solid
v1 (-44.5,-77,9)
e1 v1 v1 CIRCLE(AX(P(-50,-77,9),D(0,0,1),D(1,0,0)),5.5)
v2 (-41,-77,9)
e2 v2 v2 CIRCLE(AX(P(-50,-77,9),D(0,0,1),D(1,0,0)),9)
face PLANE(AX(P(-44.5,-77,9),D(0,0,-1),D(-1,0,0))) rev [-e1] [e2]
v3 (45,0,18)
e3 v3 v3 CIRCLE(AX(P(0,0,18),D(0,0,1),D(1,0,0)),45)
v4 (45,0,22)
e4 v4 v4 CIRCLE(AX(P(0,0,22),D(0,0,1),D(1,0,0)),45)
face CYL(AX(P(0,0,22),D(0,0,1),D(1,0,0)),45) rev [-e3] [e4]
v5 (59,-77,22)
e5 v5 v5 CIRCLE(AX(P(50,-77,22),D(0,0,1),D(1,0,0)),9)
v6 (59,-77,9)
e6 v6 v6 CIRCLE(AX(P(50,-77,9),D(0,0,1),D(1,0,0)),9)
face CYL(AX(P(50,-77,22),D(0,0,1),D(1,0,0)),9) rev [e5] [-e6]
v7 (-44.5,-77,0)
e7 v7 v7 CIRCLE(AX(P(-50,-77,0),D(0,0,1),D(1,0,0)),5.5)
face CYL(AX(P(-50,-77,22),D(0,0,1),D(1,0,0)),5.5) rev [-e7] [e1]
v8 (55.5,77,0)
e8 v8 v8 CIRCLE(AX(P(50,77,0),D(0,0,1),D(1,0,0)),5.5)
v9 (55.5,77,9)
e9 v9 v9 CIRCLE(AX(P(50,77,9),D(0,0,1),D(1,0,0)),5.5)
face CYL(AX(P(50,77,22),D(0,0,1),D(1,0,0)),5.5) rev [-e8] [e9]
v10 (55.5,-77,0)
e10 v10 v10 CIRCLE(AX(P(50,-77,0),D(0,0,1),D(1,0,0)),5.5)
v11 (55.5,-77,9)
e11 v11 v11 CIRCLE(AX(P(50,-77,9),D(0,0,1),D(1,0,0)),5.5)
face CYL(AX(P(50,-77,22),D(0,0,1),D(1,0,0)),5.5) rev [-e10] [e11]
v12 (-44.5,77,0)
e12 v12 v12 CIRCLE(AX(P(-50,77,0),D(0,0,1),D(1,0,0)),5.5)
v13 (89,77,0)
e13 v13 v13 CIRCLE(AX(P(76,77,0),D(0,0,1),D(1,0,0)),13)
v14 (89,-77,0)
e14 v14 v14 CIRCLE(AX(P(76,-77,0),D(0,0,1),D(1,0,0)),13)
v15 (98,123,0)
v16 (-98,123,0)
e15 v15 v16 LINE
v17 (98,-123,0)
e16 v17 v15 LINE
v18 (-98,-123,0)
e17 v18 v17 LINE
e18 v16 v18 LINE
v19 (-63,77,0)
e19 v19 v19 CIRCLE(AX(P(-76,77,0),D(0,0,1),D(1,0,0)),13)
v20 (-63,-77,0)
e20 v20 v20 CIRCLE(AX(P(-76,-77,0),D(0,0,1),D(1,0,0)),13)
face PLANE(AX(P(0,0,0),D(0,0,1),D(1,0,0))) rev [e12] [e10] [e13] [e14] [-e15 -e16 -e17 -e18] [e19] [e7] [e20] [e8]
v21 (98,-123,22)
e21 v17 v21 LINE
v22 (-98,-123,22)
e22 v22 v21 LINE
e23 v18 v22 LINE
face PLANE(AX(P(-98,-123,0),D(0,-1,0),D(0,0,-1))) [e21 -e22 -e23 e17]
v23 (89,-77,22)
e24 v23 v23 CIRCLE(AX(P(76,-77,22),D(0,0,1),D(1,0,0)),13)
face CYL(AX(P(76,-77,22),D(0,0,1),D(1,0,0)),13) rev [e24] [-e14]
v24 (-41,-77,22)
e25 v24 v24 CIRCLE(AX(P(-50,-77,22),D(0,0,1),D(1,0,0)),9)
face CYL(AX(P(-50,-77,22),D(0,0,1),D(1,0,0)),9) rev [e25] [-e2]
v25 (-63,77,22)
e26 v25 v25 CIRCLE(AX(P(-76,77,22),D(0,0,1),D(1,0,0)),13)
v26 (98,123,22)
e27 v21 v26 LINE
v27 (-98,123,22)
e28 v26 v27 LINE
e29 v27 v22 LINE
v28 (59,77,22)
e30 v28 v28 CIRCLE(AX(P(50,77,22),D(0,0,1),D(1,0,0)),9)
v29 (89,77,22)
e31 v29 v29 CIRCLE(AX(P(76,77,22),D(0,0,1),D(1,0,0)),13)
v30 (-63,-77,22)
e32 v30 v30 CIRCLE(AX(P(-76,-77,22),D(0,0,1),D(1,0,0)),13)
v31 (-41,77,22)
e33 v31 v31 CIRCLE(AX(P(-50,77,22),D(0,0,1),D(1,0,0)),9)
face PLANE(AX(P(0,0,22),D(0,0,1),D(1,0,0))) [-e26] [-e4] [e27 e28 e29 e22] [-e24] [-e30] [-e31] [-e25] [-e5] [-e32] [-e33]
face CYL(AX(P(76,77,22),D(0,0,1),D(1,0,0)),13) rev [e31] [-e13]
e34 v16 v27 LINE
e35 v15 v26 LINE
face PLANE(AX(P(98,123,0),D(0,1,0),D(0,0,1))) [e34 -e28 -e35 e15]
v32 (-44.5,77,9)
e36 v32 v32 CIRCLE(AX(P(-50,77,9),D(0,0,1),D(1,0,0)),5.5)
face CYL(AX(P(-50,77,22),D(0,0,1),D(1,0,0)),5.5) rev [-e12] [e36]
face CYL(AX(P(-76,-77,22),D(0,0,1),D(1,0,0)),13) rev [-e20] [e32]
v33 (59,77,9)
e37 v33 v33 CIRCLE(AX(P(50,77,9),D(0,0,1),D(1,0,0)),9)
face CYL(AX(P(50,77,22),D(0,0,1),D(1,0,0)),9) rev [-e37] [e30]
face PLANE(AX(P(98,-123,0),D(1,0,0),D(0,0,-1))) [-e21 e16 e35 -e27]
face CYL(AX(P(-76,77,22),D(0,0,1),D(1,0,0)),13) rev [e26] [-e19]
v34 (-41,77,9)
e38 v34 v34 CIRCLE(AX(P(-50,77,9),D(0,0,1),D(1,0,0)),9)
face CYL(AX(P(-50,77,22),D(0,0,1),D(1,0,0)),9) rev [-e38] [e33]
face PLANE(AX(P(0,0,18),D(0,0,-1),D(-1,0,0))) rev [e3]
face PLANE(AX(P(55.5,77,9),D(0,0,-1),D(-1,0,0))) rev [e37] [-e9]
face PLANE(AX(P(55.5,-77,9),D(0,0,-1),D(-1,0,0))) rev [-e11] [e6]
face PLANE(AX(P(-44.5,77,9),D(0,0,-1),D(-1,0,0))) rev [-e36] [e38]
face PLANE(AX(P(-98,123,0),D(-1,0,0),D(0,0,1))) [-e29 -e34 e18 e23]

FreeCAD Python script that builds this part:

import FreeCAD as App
import Part
import Sketcher

V = App.Vector
Q = App.Units.Quantity


def add_polygon(sketch, points):
    """Adds a closed chain of lines whose ends are joined by coincident constraints."""
    first, n = sketch.GeometryCount, len(points)
    for a, b in zip(points, points[1:] + points[:1]):
        sketch.addGeometry(Part.LineSegment(App.Vector(*a, 0), App.Vector(*b, 0)), False)
    for i in range(n):
        sketch.addConstraint(Sketcher.Constraint("Coincident", first + i, 2, first + (i + 1) % n, 1))

doc = App.newDocument("Part")
body = doc.addObject("PartDesign::Body", "Body")

# Sketch on XY plane
sketch1 = doc.addObject("Sketcher::SketchObject", "Sketch")
body.addObject(sketch1)
sketch1.AttachmentSupport = (doc.XY_Plane, [""])
sketch1.MapMode = "FlatFace"
sketch1.AttachmentOffset = App.Placement(V(0, 0, 22), App.Rotation())
add_polygon(sketch1, [(-98, 123), (-98, -123), (98, -123), (98, 123)])  # lines 0-3
sketch1.addConstraint([
    Sketcher.Constraint("Vertical", 0),
    Sketcher.Constraint("Horizontal", 1),
    Sketcher.Constraint("Vertical", 2),
    Sketcher.Constraint("Horizontal", 3),
    Sketcher.Constraint("Symmetric", 0, 2, 2, 2, -1, 1),
    Sketcher.Constraint("DistanceX", 1, 1, 1, 2, Q("196 mm")),
    Sketcher.Constraint("DistanceY", 0, 2, 0, 1, Q("246 mm")),
])
pad1 = doc.addObject("PartDesign::Pad", "Pad")
body.addObject(pad1)
pad1.Profile = sketch1
pad1.Length = 22
pad1.Reversed = True

# Sketch on XY plane
sketch2 = doc.addObject("Sketcher::SketchObject", "Sketch001")
body.addObject(sketch2)
sketch2.AttachmentSupport = (doc.XY_Plane, [""])
sketch2.MapMode = "FlatFace"
sketch2.AttachmentOffset = App.Placement(V(0, 0, 22), App.Rotation())
sketch2.addGeometry([
    Part.Circle(V(50, 77, 0), V(0, 0, 1), 6),
    Part.Circle(V(50, -77, 0), V(0, 0, 1), 6),
    Part.Circle(V(-50, 77, 0), V(0, 0, 1), 6),
    Part.Circle(V(-50, -77, 0), V(0, 0, 1), 6),
], False)
sketch2.addConstraint([
    Sketcher.Constraint("Equal", 0, 1),
    Sketcher.Constraint("Equal", 1, 2),
    Sketcher.Constraint("Equal", 2, 3),
    Sketcher.Constraint("Symmetric", 1, 3, 2, 3, -1, 1),
    Sketcher.Constraint("Symmetric", 0, 3, 3, 3, -1, 1),
    Sketcher.Constraint("Symmetric", 0, 3, 2, 3, -2),
    Sketcher.Constraint("Diameter", 0, Q("11 mm")),
    Sketcher.Constraint("DistanceX", -1, 1, 0, 3, Q("50 mm")),
    Sketcher.Constraint("DistanceY", -1, 1, 0, 3, Q("77 mm")),
])
doc.recompute()
hole = doc.addObject("PartDesign::Hole", "Hole")
body.addObject(hole)
hole.Profile = sketch2
hole.ThreadType = "None"
hole.Diameter = 11
hole.DepthType = "ThroughAll"
hole.HoleCutType = "Counterbore"
hole.HoleCutDiameter = 18
hole.HoleCutDepth = 13

# Sketch on XY plane
sketch3 = doc.addObject("Sketcher::SketchObject", "Sketch002")
body.addObject(sketch3)
sketch3.AttachmentSupport = (doc.XY_Plane, [""])
sketch3.MapMode = "FlatFace"
sketch3.AttachmentOffset = App.Placement(V(0, 0, 22), App.Rotation())
sketch3.addGeometry([
    Part.Circle(V(76, 77, 0), V(0, 0, 1), 13),
    Part.Circle(V(76, -77, 0), V(0, 0, 1), 13),
    Part.Circle(V(-76, -77, 0), V(0, 0, 1), 13),
    Part.Circle(V(-76, 77, 0), V(0, 0, 1), 13),
], False)
sketch3.addConstraint([
    Sketcher.Constraint("Equal", 0, 1),
    Sketcher.Constraint("Equal", 1, 2),
    Sketcher.Constraint("Equal", 2, 3),
    Sketcher.Constraint("Symmetric", 0, 3, 2, 3, -1, 1),
    Sketcher.Constraint("Symmetric", 1, 3, 3, 3, -1, 1),
    Sketcher.Constraint("Symmetric", 1, 3, 2, 3, -2),
    Sketcher.Constraint("Diameter", 0, Q("26 mm")),
    Sketcher.Constraint("DistanceX", -1, 1, 0, 3, Q("76 mm")),
    Sketcher.Constraint("DistanceY", -1, 1, 0, 3, Q("77 mm")),
])
doc.recompute()
hole2 = doc.addObject("PartDesign::Hole", "Hole001")
body.addObject(hole2)
hole2.Profile = sketch3
hole2.ThreadType = "None"
hole2.Diameter = 26
hole2.DepthType = "ThroughAll"

# Sketch on XY plane
sketch4 = doc.addObject("Sketcher::SketchObject", "Sketch003")
body.addObject(sketch4)
sketch4.AttachmentSupport = (doc.XY_Plane, [""])
sketch4.MapMode = "FlatFace"
sketch4.AttachmentOffset = App.Placement(V(0, 0, 22), App.Rotation())
sketch4.addGeometry(Part.Circle(V(0, 0, 0), V(0, 0, 1), 45), False)
sketch4.addConstraint([
    Sketcher.Constraint("Coincident", 0, 3, -1, 1),
    Sketcher.Constraint("Diameter", 0, Q("90 mm")),
])
doc.recompute()
hole3 = doc.addObject("PartDesign::Hole", "Hole002")
body.addObject(hole3)
hole3.Profile = sketch4
hole3.ThreadType = "None"
hole3.Diameter = 90
hole3.DepthType = "Dimension"
hole3.Depth = 4
hole3.DrillPoint = "Flat"

doc.recompute()
